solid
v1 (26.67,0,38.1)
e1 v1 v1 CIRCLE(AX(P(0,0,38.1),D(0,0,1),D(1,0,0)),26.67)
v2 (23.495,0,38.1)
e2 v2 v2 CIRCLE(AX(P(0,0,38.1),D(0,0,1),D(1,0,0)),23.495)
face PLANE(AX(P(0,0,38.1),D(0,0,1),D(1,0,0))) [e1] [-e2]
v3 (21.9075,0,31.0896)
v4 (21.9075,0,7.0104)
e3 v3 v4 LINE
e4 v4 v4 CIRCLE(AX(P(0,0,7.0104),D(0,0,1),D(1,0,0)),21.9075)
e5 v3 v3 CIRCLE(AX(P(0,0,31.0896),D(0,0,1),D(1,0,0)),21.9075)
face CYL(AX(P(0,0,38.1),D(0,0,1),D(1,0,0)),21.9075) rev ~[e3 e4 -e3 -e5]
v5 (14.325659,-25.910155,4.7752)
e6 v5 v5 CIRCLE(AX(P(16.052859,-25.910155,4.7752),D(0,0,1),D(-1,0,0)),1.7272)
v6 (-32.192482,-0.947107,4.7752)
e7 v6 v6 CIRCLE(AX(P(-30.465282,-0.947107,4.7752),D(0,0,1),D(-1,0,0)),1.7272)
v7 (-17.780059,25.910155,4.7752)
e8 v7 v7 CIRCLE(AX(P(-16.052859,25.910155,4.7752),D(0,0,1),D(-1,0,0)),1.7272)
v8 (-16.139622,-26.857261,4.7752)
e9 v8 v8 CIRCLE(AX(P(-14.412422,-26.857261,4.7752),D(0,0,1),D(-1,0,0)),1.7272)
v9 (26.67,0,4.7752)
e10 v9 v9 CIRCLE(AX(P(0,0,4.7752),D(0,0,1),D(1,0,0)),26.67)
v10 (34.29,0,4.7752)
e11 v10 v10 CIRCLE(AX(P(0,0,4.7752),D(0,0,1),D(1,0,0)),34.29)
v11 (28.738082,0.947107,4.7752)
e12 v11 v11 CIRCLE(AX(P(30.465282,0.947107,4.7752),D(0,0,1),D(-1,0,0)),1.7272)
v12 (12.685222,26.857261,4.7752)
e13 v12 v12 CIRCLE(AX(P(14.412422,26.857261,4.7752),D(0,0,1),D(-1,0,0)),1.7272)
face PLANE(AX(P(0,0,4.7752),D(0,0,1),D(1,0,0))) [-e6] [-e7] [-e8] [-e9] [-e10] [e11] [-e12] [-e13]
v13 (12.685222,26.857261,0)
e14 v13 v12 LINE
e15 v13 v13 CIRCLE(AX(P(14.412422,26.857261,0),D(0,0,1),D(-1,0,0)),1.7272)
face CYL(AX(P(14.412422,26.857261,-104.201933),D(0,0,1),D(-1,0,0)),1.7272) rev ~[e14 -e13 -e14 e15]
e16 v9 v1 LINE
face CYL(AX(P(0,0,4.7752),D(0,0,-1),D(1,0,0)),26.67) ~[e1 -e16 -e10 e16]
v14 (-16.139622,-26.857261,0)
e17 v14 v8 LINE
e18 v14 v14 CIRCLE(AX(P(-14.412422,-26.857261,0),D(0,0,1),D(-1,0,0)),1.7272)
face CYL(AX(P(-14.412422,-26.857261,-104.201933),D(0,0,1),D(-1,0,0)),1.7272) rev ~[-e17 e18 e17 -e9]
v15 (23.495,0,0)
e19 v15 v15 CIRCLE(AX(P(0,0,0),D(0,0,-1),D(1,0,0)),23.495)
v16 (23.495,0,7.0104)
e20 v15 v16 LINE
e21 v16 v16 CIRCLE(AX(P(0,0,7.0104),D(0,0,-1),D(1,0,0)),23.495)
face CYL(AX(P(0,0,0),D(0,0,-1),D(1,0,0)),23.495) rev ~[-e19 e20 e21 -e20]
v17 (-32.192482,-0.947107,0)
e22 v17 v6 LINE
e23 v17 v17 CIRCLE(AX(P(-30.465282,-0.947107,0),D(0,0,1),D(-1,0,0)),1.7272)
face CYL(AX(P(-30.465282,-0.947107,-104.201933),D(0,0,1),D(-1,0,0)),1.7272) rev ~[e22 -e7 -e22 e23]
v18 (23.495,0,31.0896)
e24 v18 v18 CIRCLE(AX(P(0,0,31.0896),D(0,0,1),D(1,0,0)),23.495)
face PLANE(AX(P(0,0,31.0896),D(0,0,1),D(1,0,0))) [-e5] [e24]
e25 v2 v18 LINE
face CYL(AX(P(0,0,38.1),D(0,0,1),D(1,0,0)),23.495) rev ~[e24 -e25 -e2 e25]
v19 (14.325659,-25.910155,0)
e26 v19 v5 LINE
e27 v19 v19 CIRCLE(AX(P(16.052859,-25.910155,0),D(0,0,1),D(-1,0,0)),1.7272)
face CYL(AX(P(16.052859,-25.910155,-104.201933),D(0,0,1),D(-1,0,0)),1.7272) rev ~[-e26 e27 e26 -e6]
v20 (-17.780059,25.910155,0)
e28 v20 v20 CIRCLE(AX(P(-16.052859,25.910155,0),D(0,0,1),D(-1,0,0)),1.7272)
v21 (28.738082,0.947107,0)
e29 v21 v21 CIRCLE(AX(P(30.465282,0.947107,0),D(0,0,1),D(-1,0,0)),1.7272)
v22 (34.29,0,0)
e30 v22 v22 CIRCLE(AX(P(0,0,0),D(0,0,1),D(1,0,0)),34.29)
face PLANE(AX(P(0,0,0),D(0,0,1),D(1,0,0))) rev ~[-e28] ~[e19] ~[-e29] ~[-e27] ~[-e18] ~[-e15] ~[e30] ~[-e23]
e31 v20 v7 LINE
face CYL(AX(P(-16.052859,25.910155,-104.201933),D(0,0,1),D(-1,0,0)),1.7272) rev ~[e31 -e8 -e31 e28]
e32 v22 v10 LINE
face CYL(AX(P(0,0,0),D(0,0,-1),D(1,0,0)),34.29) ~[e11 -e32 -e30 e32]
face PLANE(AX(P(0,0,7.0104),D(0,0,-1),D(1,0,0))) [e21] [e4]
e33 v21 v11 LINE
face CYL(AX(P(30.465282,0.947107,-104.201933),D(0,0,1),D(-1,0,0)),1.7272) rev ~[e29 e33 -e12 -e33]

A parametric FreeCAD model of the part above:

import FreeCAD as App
import Part
import Sketcher

V = App.Vector
Q = App.Units.Quantity

doc = App.newDocument("Part")
body = doc.addObject("PartDesign::Body", "Body")

sketch1 = body.newObject("Sketcher::SketchObject", "Sketch")
sketch1.AttachmentSupport = (doc.getObject("XY_Plane"), [""])
sketch1.MapMode = "FlatFace"
sketch1.addGeometry(Part.Circle(V(0, 0, 0), V(0, 0, 1), 34), False)
sketch1.addConstraint(Sketcher.Constraint("Coincident", 0, 3, -1, 1))
sketch1.addConstraint(Sketcher.Constraint("Diameter", 0, Q("2.7 in")))
pad1 = body.newObject("PartDesign::Pad", "Pad")
pad1.Profile = sketch1
pad1.Length = Q("0.188 in")

sketch2 = body.newObject("Sketcher::SketchObject", "Sketch001")
sketch2.AttachmentSupport = (doc.getObject("XY_Plane"), [""])
sketch2.MapMode = "FlatFace"
sketch2.AttachmentOffset = App.Placement(V(0, 0, 0.188 * 25.4), App.Rotation())
sketch2.addGeometry(Part.Circle(V(0, 0, 0), V(0, 0, 1), 27), False)
sketch2.addConstraint(Sketcher.Constraint("Coincident", 0, 3, -1, 1))
sketch2.addConstraint(Sketcher.Constraint("Diameter", 0, Q("2.1 in")))
pad2 = body.newObject("PartDesign::Pad", "Pad001")
pad2.Profile = sketch2
pad2.Length = Q("1.312 in")

sketch3 = body.newObject("Sketcher::SketchObject", "Sketch002")
sketch3.AttachmentSupport = (doc.getObject("XY_Plane"), [""])
sketch3.MapMode = "FlatFace"
sketch3.AttachmentOffset = App.Placement(V(0, 0, 1.5 * 25.4), App.Rotation())
sketch3.addGeometry(Part.Circle(V(0, 0, 0), V(0, 0, 1), 22), False)
sketch3.addConstraint(Sketcher.Constraint("Coincident", 0, 3, -1, 1))
sketch3.addConstraint(Sketcher.Constraint("Diameter", 0, Q("1.725 in")))
pocket1 = body.newObject("PartDesign::Pocket", "Pocket")
pocket1.Profile = sketch3
pocket1.Type = "ThroughAll"

sketch4 = body.newObject("Sketcher::SketchObject", "Sketch003")
sketch4.AttachmentSupport = (doc.getObject("XY_Plane"), [""])
sketch4.MapMode = "FlatFace"
sketch4.AttachmentOffset = App.Placement(V(0, 0, 1.5 * 25.4), App.Rotation())
sketch4.addGeometry(Part.Circle(V(0, 0, 0), V(0, 0, 1), 23), False)
sketch4.addConstraint(Sketcher.Constraint("Coincident", 0, 3, -1, 1))
sketch4.addConstraint(Sketcher.Constraint("Diameter", 0, Q("1.85 in")))
pocket2 = body.newObject("PartDesign::Pocket", "Pocket001")
pocket2.Profile = sketch4
pocket2.Length = Q("0.276 in")

sketch5 = body.newObject("Sketcher::SketchObject", "Sketch004")
sketch5.AttachmentSupport = (doc.getObject("XY_Plane"), [""])
sketch5.MapMode = "FlatFace"
sketch5.addGeometry(Part.Circle(V(0, 0, 0), V(0, 0, 1), 23), False)
sketch5.addConstraint(Sketcher.Constraint("Coincident", 0, 3, -1, 1))
sketch5.addConstraint(Sketcher.Constraint("Diameter", 0, Q("1.85 in")))
pocket3 = body.newObject("PartDesign::Pocket", "Pocket002")
pocket3.Profile = sketch5
pocket3.Length = Q("0.276 in")
pocket3.Reversed = True

sketch6 = body.newObject("Sketcher::SketchObject", "Sketch005")
sketch6.AttachmentSupport = (doc.getObject("XY_Plane"), [""])
sketch6.MapMode = "FlatFace"
sketch6.addGeometry(Part.Circle(V(-16.1, 25.9, 0), V(0, 0, 1), 1.7), False)
sketch6.addGeometry(Part.Circle(V(-30.5, -0.9, 0), V(0, 0, 1), 1.7), False)
sketch6.addGeometry(Part.Circle(V(-14.4, -26.9, 0), V(0, 0, 1), 1.7), False)
sketch6.addGeometry(Part.Circle(V(16.1, -25.9, 0), V(0, 0, 1), 1.7), False)
sketch6.addGeometry(Part.Circle(V(30.5, 0.9, 0), V(0, 0, 1), 1.7), False)
sketch6.addGeometry(Part.Circle(V(14.4, 26.9, 0), V(0, 0, 1), 1.7), False)
sketch6.addConstraint(Sketcher.Constraint("Equal", 0, 1))
sketch6.addConstraint(Sketcher.Constraint("Equal", 1, 2))
sketch6.addConstraint(Sketcher.Constraint("Equal", 2, 3))
sketch6.addConstraint(Sketcher.Constraint("Equal", 3, 4))
sketch6.addConstraint(Sketcher.Constraint("Equal", 4, 5))
sketch6.addConstraint(Sketcher.Constraint("Symmetric", 0, 3, 3, 3, -1, 1))
sketch6.addConstraint(Sketcher.Constraint("Symmetric", 1, 3, 4, 3, -1, 1))
sketch6.addConstraint(Sketcher.Constraint("Symmetric", 2, 3, 5, 3, -1, 1))
sketch6.addConstraint(Sketcher.Constraint("Diameter", 0, Q("0.136 in")))
sketch6.addConstraint(Sketcher.Constraint("DistanceX", 0, 3, -1, 1, 16.052859))
sketch6.addConstraint(Sketcher.Constraint("DistanceX", 1, 3, -1, 1, 30.465282))
sketch6.addConstraint(Sketcher.Constraint("DistanceY", 2, 3, -1, 1, 26.857261))
sketch6.addConstraint(Sketcher.Constraint("DistanceY", 1, 3, 0, 3, 26.857262))
sketch6.addConstraint(Sketcher.Constraint("DistanceX", 1, 3, 2, 3, 16.05286))
sketch6.addConstraint(Sketcher.Constraint("DistanceY", 3, 3, 1, 3, 24.963048))
doc.recompute()
hole = body.newObject("PartDesign::Hole", "Hole")
hole.Profile = sketch6
hole.ThreadType = "None"
hole.Diameter = Q("0.136 in")
hole.DepthType = "ThroughAll"
hole.Reversed = True

doc.recompute()
